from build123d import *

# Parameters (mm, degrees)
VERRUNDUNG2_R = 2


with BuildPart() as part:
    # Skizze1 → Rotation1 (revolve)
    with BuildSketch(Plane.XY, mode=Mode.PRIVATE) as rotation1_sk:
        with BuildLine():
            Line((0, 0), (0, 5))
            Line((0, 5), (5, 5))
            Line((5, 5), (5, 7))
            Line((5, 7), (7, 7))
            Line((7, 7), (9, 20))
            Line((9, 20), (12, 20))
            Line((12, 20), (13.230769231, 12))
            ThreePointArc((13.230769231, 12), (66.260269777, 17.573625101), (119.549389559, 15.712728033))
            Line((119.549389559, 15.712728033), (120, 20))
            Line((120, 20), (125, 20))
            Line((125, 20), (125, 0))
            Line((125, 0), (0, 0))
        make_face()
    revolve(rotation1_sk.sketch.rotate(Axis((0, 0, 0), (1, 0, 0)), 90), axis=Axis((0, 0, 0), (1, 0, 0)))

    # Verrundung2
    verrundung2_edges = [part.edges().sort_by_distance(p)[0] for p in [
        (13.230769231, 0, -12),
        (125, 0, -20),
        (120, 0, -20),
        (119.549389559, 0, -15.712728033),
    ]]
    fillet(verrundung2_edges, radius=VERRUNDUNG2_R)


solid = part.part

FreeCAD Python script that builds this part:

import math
import FreeCAD as App
import Part
import Sketcher

V = App.Vector
Q = App.Units.Quantity


def edges_at(feature, points):
    """Names of the edges that pass closest to the given points."""
    edges = feature.Shape.Edges
    near = lambda p: min(range(len(edges)), key=lambda i: edges[i].distToShape(Part.Vertex(*p))[0])
    return sorted({f"Edge{near(p) + 1}" for p in points})

doc = App.newDocument("Part")
body = doc.addObject("PartDesign::Body", "Body")

# Sketch on XY plane
sketch1 = body.newObject("Sketcher::SketchObject", "Sketch")
sketch1.AttachmentSupport = (doc.getObject("XY_Plane"), [""])
sketch1.MapMode = "FlatFace"
sketch1.addGeometry([
    Part.LineSegment(V(0, 5, 0), V(0, 0, 0)),  # 0
    Part.LineSegment(V(0, 0, 0), V(125, 0, 0)),  # 1
    Part.LineSegment(V(125, 0, 0), V(125, 20, 0)),  # 2
    Part.LineSegment(V(125, 20, 0), V(120, 20, 0)),  # 3
    Part.LineSegment(V(120, 20, 0), V(119.5, 15.7, 0)),  # 4
    Part.ArcOfCircle(Part.Circle(V(79.6, -364.4, 0), V(0, 0, 1), 382.2), math.radians(84), math.radians(100)),  # 5
    Part.LineSegment(V(13.2, 12, 0), V(12, 20, 0)),  # 6
    Part.LineSegment(V(12, 20, 0), V(9, 20, 0)),  # 7
    Part.LineSegment(V(9, 20, 0), V(7, 7, 0)),  # 8
    Part.LineSegment(V(7, 7, 0), V(5, 7, 0)),  # 9
    Part.LineSegment(V(5, 7, 0), V(5, 5, 0)),  # 10
    Part.LineSegment(V(5, 5, 0), V(0, 5, 0)),  # 11
], False)
sketch1.addConstraint([
    Sketcher.Constraint("Coincident", 0, 2, 1, 1),
    Sketcher.Constraint("Coincident", 1, 2, 2, 1),
    Sketcher.Constraint("Coincident", 2, 2, 3, 1),
    Sketcher.Constraint("Coincident", 3, 2, 4, 1),
    Sketcher.Constraint("Coincident", 4, 2, 5, 1),
    Sketcher.Constraint("Coincident", 5, 2, 6, 1),
    Sketcher.Constraint("Coincident", 6, 2, 7, 1),
    Sketcher.Constraint("Coincident", 7, 2, 8, 1),
    Sketcher.Constraint("Coincident", 8, 2, 9, 1),
    Sketcher.Constraint("Coincident", 9, 2, 10, 1),
    Sketcher.Constraint("Coincident", 10, 2, 11, 1),
    Sketcher.Constraint("Coincident", 11, 2, 0, 1),
    Sketcher.Constraint("Vertical", 0),
    Sketcher.Constraint("Horizontal", 1),
    Sketcher.Constraint("Vertical", 2),
    Sketcher.Constraint("Horizontal", 3),
    Sketcher.Constraint("Horizontal", 7),
    Sketcher.Constraint("Horizontal", 9),
    Sketcher.Constraint("Vertical", 10),
    Sketcher.Constraint("Horizontal", 11),
    Sketcher.Constraint("Coincident", 0, 2, -1, 1),
    Sketcher.Constraint("Horizontal", 3, 2, 6, 2),
    Sketcher.Constraint("Equal", 3, 11),
    Sketcher.Constraint("Equal", 11, 0),
    Sketcher.Constraint("Equal", 9, 10),
    Sketcher.Constraint("DistanceX", 1, 1, 1, 2, Q("125 mm")),
    Sketcher.Constraint("DistanceX", 3, 2, 3, 1, Q("5 mm")),
    Sketcher.Constraint("DistanceX", 7, 2, 7, 1, Q("3 mm")),
    Sketcher.Constraint("DistanceX", 9, 2, 9, 1, Q("2 mm")),
    Sketcher.Constraint("DistanceY", 2, 1, 2, 2, Q("20 mm")),
    Sketcher.Constraint("Angle", 4, Q("-96 deg")),
    Sketcher.Constraint("DistanceY", -1, 1, 5, 2, Q("12 mm")),
    Sketcher.Constraint("DistanceX", -1, 1, 6, 2, Q("12 mm")),
    Sketcher.Constraint("Radius", 5, Q("382.198232 mm")),
    Sketcher.Constraint("Distance", 6, Q("8.094121 mm")),
    Sketcher.Constraint("DistanceX", -1, 1, 4, 2, Q("119.54939 mm")),
])
revolution = body.newObject("PartDesign::Revolution", "Revolution")
revolution.Profile = sketch1
revolution.ReferenceAxis = (sketch1, ["H_Axis"])
revolution.Angle = 360
doc.recompute()

fillet = body.newObject("PartDesign::Fillet", "Fillet")
fillet.Base = (revolution, edges_at(revolution, [
    (13.231, 0, -12),
    (125, 0, -20),
    (120, 0, -20),
    (119.549, 0, -15.713),
]))
fillet.Radius = 2

doc.recompute()
